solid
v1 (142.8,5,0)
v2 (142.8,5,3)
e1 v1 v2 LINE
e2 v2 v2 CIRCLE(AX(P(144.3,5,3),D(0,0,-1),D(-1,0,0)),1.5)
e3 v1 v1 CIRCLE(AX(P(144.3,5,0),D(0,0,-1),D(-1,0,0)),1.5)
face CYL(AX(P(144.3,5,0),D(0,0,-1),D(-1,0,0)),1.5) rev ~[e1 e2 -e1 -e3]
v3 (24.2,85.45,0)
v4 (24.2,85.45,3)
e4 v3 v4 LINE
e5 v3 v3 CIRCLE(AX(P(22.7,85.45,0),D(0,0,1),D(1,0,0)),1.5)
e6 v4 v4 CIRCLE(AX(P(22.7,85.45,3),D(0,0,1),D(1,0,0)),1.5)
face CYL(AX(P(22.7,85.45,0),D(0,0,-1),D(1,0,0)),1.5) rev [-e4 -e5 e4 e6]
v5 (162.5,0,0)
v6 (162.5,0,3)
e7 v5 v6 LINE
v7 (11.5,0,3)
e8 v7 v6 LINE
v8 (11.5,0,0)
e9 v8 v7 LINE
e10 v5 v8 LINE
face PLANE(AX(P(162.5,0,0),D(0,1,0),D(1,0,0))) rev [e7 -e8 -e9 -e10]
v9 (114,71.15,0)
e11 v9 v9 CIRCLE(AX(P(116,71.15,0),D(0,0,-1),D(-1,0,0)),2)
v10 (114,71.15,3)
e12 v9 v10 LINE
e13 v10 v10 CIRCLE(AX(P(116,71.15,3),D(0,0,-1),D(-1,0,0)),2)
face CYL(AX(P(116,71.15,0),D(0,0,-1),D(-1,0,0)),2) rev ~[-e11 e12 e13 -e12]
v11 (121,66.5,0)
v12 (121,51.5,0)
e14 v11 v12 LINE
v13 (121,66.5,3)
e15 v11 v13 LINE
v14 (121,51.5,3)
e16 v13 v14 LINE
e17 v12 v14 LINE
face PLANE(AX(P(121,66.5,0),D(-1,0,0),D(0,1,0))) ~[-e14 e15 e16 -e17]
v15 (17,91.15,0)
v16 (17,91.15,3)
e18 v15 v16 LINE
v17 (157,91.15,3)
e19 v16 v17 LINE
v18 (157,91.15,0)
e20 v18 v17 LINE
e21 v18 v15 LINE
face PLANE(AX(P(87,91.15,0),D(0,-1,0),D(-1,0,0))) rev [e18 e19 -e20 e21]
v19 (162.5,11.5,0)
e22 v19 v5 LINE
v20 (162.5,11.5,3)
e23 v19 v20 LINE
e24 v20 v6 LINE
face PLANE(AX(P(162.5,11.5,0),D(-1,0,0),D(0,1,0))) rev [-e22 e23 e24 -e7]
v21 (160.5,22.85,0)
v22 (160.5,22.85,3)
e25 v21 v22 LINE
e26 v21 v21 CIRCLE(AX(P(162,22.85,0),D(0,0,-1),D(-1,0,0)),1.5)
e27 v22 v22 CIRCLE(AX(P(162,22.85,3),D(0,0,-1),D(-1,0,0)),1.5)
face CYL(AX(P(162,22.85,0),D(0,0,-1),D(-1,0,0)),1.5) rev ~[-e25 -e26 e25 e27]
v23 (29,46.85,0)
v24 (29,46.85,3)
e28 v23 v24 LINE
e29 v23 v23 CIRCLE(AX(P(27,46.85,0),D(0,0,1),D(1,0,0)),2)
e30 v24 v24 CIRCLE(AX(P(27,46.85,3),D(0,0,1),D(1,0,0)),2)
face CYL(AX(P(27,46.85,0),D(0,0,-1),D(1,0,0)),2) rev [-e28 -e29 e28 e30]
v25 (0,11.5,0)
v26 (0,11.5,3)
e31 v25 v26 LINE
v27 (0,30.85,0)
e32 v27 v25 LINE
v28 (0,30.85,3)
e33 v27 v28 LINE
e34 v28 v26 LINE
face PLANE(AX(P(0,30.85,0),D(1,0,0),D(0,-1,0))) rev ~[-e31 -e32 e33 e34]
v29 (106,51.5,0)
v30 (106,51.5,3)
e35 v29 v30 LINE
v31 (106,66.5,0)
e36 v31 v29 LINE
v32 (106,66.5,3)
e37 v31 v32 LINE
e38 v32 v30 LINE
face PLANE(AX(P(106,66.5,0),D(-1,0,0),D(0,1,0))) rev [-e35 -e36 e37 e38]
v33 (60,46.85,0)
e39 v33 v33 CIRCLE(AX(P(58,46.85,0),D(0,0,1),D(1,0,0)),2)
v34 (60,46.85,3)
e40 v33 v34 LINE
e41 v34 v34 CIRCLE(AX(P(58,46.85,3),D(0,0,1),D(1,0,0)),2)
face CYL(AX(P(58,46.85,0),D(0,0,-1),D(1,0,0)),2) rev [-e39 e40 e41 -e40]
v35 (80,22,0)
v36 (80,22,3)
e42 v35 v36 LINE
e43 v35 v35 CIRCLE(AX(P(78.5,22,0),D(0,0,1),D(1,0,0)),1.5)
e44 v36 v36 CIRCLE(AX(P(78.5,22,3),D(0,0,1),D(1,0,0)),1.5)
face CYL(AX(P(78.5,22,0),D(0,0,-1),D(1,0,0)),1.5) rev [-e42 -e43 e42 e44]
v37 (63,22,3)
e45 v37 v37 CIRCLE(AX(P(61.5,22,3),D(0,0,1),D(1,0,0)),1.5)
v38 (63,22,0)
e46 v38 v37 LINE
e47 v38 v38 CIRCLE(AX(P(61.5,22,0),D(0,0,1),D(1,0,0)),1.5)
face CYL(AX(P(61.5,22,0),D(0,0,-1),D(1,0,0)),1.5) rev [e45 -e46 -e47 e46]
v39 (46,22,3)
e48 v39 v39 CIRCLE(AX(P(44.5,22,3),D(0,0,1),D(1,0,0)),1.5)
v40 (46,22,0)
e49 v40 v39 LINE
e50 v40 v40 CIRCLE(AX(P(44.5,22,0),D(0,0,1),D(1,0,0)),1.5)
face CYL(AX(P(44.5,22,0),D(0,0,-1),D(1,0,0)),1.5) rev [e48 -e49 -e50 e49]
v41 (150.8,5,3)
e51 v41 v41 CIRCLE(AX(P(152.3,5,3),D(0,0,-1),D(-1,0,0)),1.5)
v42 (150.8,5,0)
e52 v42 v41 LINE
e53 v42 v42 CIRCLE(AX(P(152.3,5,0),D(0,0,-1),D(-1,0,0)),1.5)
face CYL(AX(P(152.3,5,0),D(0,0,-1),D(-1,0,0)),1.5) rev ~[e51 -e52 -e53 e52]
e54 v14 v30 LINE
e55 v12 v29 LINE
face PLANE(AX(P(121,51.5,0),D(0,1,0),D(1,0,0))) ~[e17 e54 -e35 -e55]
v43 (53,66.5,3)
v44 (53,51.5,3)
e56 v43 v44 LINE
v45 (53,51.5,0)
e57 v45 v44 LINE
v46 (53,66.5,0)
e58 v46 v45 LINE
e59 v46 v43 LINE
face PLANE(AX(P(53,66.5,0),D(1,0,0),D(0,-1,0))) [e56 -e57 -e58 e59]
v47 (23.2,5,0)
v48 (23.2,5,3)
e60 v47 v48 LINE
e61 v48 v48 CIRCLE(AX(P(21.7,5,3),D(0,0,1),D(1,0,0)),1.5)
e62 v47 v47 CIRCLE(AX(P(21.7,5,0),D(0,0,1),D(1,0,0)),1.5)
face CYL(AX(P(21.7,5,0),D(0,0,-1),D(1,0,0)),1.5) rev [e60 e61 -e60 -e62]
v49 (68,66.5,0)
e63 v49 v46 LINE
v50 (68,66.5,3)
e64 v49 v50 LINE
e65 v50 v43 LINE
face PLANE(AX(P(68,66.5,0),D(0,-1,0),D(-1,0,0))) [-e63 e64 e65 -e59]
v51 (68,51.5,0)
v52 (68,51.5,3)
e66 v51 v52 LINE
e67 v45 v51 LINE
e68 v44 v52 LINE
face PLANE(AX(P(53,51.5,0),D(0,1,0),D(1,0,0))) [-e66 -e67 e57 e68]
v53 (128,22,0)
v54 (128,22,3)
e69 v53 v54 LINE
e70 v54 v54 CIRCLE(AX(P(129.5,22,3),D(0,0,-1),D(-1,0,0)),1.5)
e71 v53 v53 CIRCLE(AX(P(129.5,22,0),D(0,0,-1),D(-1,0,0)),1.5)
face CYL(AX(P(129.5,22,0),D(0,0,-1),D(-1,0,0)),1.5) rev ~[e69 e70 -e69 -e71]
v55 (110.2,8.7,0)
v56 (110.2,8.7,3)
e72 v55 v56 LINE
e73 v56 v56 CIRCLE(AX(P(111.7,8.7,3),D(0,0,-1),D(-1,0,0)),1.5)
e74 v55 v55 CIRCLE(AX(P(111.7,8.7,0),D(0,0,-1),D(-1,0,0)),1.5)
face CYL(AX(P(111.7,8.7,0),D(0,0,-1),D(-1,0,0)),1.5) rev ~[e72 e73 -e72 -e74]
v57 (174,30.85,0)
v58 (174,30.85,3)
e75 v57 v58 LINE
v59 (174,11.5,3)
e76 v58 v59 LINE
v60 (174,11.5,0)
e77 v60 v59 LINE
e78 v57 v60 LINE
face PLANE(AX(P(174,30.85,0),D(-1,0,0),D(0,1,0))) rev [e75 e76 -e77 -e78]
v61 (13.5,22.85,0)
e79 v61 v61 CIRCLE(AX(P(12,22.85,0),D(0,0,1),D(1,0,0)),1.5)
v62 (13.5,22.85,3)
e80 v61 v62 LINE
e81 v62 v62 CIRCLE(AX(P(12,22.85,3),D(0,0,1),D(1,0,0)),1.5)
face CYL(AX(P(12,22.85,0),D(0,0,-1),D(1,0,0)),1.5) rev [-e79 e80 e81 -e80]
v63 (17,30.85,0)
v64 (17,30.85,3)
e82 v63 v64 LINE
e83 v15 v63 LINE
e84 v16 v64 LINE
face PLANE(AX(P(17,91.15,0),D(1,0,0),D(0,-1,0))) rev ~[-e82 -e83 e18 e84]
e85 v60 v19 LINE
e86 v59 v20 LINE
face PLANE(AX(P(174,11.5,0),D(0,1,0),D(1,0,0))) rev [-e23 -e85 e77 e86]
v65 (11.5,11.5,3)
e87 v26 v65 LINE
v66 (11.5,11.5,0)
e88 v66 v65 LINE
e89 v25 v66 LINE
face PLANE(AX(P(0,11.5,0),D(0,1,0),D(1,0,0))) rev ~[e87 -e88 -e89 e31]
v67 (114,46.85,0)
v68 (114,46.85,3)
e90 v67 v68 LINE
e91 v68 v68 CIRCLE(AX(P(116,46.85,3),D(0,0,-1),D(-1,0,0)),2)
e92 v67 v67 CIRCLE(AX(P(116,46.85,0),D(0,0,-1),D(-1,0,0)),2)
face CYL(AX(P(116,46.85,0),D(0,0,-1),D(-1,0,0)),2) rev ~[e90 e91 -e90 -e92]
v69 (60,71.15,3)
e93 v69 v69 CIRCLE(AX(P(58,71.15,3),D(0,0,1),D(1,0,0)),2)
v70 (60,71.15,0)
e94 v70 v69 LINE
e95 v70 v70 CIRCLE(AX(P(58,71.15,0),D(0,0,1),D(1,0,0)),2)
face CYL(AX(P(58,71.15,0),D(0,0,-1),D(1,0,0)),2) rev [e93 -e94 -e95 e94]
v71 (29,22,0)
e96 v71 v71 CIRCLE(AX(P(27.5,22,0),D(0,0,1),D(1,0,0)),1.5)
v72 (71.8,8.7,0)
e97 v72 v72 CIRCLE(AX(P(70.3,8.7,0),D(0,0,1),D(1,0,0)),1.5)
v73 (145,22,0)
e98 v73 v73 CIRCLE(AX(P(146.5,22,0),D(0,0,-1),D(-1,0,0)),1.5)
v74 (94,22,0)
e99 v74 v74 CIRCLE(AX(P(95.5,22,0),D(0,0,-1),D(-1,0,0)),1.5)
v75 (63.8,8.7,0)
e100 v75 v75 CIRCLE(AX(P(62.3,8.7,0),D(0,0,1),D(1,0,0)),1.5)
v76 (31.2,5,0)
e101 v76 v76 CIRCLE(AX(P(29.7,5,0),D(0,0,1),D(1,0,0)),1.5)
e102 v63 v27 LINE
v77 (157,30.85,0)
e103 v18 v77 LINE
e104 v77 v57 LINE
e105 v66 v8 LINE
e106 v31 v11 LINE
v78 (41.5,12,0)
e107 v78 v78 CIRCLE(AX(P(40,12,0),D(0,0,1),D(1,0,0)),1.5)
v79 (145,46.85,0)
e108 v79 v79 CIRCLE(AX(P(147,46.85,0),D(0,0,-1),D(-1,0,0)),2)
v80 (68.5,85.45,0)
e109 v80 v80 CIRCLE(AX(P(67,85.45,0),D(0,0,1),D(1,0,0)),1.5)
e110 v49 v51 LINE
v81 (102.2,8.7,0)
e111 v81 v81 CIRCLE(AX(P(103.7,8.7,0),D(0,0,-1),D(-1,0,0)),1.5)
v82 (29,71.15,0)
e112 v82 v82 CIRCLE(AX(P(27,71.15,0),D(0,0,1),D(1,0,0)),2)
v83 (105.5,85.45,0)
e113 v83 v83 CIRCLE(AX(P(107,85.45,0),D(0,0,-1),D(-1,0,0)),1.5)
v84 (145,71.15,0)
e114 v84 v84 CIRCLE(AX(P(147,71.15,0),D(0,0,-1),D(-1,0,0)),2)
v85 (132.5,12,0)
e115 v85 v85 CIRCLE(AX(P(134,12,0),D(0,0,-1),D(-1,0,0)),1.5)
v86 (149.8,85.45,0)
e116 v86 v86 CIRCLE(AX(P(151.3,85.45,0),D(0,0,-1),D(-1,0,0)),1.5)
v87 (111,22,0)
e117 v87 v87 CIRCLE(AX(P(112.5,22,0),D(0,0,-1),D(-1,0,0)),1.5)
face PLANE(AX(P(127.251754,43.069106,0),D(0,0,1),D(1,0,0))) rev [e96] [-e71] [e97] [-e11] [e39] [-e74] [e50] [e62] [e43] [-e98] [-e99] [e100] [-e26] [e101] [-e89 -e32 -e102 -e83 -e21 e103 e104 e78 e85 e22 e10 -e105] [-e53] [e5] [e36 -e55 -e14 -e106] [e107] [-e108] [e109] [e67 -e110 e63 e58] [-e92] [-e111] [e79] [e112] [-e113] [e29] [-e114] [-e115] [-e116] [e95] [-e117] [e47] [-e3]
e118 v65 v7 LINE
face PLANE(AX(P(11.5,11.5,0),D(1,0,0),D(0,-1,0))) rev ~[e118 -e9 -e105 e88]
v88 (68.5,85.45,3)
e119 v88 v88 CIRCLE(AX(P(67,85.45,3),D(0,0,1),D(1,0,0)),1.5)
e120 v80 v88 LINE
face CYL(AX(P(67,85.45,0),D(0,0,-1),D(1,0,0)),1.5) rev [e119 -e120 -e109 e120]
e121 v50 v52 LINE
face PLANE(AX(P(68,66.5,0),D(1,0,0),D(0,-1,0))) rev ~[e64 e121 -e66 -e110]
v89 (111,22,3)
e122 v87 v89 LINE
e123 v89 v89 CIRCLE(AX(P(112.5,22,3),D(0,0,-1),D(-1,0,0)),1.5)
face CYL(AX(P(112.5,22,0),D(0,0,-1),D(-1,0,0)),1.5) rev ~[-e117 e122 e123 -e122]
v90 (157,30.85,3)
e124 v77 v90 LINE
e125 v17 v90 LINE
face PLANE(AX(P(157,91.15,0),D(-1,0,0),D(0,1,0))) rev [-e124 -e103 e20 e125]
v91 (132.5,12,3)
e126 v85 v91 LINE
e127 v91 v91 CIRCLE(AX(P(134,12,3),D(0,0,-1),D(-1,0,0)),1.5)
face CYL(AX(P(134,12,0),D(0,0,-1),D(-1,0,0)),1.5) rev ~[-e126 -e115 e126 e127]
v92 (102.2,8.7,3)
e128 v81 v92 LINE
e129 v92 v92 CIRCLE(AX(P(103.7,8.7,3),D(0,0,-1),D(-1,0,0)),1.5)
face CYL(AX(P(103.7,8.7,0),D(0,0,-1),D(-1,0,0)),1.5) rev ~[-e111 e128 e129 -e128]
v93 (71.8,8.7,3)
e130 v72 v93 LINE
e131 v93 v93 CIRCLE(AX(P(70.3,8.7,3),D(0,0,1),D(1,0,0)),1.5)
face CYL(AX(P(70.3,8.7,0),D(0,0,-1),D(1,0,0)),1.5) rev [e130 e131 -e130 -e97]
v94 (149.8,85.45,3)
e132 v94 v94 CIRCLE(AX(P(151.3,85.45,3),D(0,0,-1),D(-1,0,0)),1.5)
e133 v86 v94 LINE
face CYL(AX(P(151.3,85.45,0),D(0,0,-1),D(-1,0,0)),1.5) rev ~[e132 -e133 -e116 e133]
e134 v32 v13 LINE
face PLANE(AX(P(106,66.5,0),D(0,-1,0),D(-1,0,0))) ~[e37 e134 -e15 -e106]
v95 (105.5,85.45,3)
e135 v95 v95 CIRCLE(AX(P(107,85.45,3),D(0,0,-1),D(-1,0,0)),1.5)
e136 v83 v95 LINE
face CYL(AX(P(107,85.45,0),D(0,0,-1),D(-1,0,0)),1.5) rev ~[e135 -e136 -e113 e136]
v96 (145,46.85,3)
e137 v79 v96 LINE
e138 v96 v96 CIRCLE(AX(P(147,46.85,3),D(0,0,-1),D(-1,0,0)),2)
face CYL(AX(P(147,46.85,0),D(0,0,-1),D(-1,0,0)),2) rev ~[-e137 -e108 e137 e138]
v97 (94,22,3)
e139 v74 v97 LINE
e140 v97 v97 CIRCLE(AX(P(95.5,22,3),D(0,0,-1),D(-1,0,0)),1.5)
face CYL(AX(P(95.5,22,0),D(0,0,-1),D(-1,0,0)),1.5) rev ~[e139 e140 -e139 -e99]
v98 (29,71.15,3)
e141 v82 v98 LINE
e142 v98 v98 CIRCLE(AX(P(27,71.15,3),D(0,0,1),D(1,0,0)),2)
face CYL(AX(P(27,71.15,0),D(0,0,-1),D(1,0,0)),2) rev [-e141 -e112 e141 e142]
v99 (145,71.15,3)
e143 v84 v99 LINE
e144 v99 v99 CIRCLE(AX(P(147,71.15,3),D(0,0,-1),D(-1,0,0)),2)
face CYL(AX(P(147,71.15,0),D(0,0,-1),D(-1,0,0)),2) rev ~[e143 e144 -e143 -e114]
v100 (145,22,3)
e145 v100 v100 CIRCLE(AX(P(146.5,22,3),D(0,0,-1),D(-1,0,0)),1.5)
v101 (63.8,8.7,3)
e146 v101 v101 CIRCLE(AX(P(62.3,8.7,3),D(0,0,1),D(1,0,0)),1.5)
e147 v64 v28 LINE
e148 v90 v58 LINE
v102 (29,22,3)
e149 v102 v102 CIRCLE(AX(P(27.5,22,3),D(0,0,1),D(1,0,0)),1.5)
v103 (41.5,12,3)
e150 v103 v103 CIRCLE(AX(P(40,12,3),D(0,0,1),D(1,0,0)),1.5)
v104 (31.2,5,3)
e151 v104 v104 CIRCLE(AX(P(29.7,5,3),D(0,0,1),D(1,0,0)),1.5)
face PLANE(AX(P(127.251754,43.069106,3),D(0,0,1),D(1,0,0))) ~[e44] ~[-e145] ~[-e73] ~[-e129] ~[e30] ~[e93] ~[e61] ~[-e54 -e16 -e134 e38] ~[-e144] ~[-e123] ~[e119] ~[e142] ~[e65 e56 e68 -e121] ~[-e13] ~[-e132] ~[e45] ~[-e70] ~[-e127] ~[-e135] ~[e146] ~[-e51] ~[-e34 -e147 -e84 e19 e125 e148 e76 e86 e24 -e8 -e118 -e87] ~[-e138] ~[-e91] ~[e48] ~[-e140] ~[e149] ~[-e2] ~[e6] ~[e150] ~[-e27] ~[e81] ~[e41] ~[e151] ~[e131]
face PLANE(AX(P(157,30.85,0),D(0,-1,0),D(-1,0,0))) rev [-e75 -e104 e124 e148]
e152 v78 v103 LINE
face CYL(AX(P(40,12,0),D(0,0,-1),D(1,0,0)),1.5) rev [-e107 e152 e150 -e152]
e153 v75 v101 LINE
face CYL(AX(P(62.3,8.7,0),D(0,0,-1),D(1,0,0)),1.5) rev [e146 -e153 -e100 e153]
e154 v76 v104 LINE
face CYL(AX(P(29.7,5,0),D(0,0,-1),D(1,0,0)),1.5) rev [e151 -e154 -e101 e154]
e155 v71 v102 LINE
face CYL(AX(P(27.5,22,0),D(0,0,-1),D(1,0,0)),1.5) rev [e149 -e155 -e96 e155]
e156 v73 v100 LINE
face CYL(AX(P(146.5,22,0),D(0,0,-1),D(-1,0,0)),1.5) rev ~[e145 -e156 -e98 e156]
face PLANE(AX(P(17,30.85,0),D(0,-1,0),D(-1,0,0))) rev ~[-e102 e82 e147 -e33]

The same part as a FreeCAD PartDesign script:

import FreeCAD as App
import Part
import Sketcher

V = App.Vector

doc = App.newDocument("Part")
body = doc.addObject("PartDesign::Body", "Body")

# Sketch on XY plane
sketch1 = doc.addObject("Sketcher::SketchObject", "Sketch")
body.addObject(sketch1)
sketch1.AttachmentSupport = (doc.XY_Plane, [""])
sketch1.MapMode = "FlatFace"
sketch1.addGeometry(Part.LineSegment(V(87, 0, 0), V(87, 91.2, 0)), False)
sketch1.addGeometry(Part.LineSegment(V(87, 91.2, 0), V(17, 91.2, 0)), False)
sketch1.addGeometry(Part.LineSegment(V(17, 91.2, 0), V(17, 30.9, 0)), False)
sketch1.addGeometry(Part.LineSegment(V(17, 30.9, 0), V(0, 30.9, 0)), False)
sketch1.addGeometry(Part.LineSegment(V(0, 30.9, 0), V(0, 11.5, 0)), False)
sketch1.addGeometry(Part.LineSegment(V(0, 11.5, 0), V(11.5, 11.5, 0)), False)
sketch1.addGeometry(Part.LineSegment(V(11.5, 11.5, 0), V(11.5, 0, 0)), False)
sketch1.addGeometry(Part.LineSegment(V(11.5, 0, 0), V(87, 0, 0)), False)
sketch1.addGeometry(Part.Circle(V(21.7, 5, 0), V(0, 0, 1), 1.5), False)
sketch1.addGeometry(Part.Circle(V(12, 22.9, 0), V(0, 0, 1), 1.5), False)
sketch1.addGeometry(Part.Circle(V(27.5, 22, 0), V(0, 0, 1), 1.5), False)
sketch1.addGeometry(Part.Circle(V(29.7, 5, 0), V(0, 0, 1), 1.5), False)
sketch1.addGeometry(Part.Circle(V(40, 12, 0), V(0, 0, 1), 1.5), False)
sketch1.addGeometry(Part.Circle(V(44.5, 22, 0), V(0, 0, 1), 1.5), False)
sketch1.addGeometry(Part.Circle(V(62.3, 8.7, 0), V(0, 0, 1), 1.5), False)
sketch1.addGeometry(Part.Circle(V(61.5, 22, 0), V(0, 0, 1), 1.5), False)
sketch1.addGeometry(Part.Circle(V(70.3, 8.7, 0), V(0, 0, 1), 1.5), False)
sketch1.addGeometry(Part.Circle(V(78.5, 22, 0), V(0, 0, 1), 1.5), False)
sketch1.addGeometry(Part.Circle(V(27, 46.9, 0), V(0, 0, 1), 2), False)
sketch1.addGeometry(Part.Circle(V(27, 71.2, 0), V(0, 0, 1), 2), False)
sketch1.addGeometry(Part.Circle(V(22.7, 85.5, 0), V(0, 0, 1), 1.5), False)
sketch1.addGeometry(Part.Circle(V(58, 46.9, 0), V(0, 0, 1), 2), False)
sketch1.addGeometry(Part.LineSegment(V(68, 66.5, 0), V(68, 51.5, 0)), False)
sketch1.addGeometry(Part.LineSegment(V(68, 51.5, 0), V(53, 51.5, 0)), False)
sketch1.addGeometry(Part.LineSegment(V(53, 51.5, 0), V(53, 66.5, 0)), False)
sketch1.addGeometry(Part.LineSegment(V(53, 66.5, 0), V(68, 66.5, 0)), False)
sketch1.addGeometry(Part.Circle(V(58, 71.2, 0), V(0, 0, 1), 2), False)
sketch1.addGeometry(Part.Circle(V(67, 85.5, 0), V(0, 0, 1), 1.5), False)
sketch1.addConstraint(Sketcher.Constraint("Coincident", 0, 2, 1, 1))
sketch1.addConstraint(Sketcher.Constraint("Coincident", 1, 2, 2, 1))
sketch1.addConstraint(Sketcher.Constraint("Coincident", 2, 2, 3, 1))
sketch1.addConstraint(Sketcher.Constraint("Coincident", 3, 2, 4, 1))
sketch1.addConstraint(Sketcher.Constraint("Coincident", 4, 2, 5, 1))
sketch1.addConstraint(Sketcher.Constraint("Coincident", 5, 2, 6, 1))
sketch1.addConstraint(Sketcher.Constraint("Coincident", 6, 2, 7, 1))
sketch1.addConstraint(Sketcher.Constraint("Coincident", 7, 2, 0, 1))
sketch1.addConstraint(Sketcher.Constraint("Coincident", 22, 2, 23, 1))
sketch1.addConstraint(Sketcher.Constraint("Coincident", 23, 2, 24, 1))
sketch1.addConstraint(Sketcher.Constraint("Coincident", 24, 2, 25, 1))
sketch1.addConstraint(Sketcher.Constraint("Coincident", 25, 2, 22, 1))
sketch1.addConstraint(Sketcher.Constraint("Vertical", 0))
sketch1.addConstraint(Sketcher.Constraint("Horizontal", 1))
sketch1.addConstraint(Sketcher.Constraint("Vertical", 2))
sketch1.addConstraint(Sketcher.Constraint("Horizontal", 3))
sketch1.addConstraint(Sketcher.Constraint("Vertical", 4))
sketch1.addConstraint(Sketcher.Constraint("Horizontal", 5))
sketch1.addConstraint(Sketcher.Constraint("Vertical", 6))
sketch1.addConstraint(Sketcher.Constraint("Horizontal", 7))
sketch1.addConstraint(Sketcher.Constraint("Vertical", 22))
sketch1.addConstraint(Sketcher.Constraint("Horizontal", 23))
sketch1.addConstraint(Sketcher.Constraint("Vertical", 24))
sketch1.addConstraint(Sketcher.Constraint("Horizontal", 25))
sketch1.addConstraint(Sketcher.Constraint("Equal", 8, 9))
sketch1.addConstraint(Sketcher.Constraint("Equal", 9, 10))
sketch1.addConstraint(Sketcher.Constraint("Equal", 10, 11))
sketch1.addConstraint(Sketcher.Constraint("Equal", 11, 12))
sketch1.addConstraint(Sketcher.Constraint("Equal", 12, 13))
sketch1.addConstraint(Sketcher.Constraint("Equal", 13, 14))
sketch1.addConstraint(Sketcher.Constraint("Equal", 14, 15))
sketch1.addConstraint(Sketcher.Constraint("Equal", 15, 16))
sketch1.addConstraint(Sketcher.Constraint("Equal", 16, 17))
sketch1.addConstraint(Sketcher.Constraint("Equal", 18, 19))
sketch1.addConstraint(Sketcher.Constraint("Equal", 17, 20))
sketch1.addConstraint(Sketcher.Constraint("Equal", 19, 21))
sketch1.addConstraint(Sketcher.Constraint("Equal", 21, 26))
sketch1.addConstraint(Sketcher.Constraint("Equal", 20, 27))
sketch1.addConstraint(Sketcher.Constraint("PointOnObject", 3, 2, -2))
sketch1.addConstraint(Sketcher.Constraint("PointOnObject", 6, 2, -1))
sketch1.addConstraint(Sketcher.Constraint("Horizontal", 8, 3, 11, 3))
sketch1.addConstraint(Sketcher.Constraint("Horizontal", 10, 3, 13, 3))
sketch1.addConstraint(Sketcher.Constraint("Horizontal", 13, 3, 15, 3))
sketch1.addConstraint(Sketcher.Constraint("Horizontal", 14, 3, 16, 3))
sketch1.addConstraint(Sketcher.Constraint("Horizontal", 15, 3, 17, 3))
sketch1.addConstraint(Sketcher.Constraint("Horizontal", 18, 3, 21, 3))
sketch1.addConstraint(Sketcher.Constraint("Horizontal", 19, 3, 26, 3))
sketch1.addConstraint(Sketcher.Constraint("Horizontal", 20, 3, 27, 3))
sketch1.addConstraint(Sketcher.Constraint("Vertical", 18, 3, 19, 3))
sketch1.addConstraint(Sketcher.Constraint("Vertical", 21, 3, 26, 3))
sketch1.addConstraint(Sketcher.Constraint("Equal", 5, 6))
sketch1.addConstraint(Sketcher.Constraint("Equal", 25, 22))
sketch1.addConstraint(Sketcher.Constraint("Diameter", 8, 3.0))
sketch1.addConstraint(Sketcher.Constraint("Diameter", 18, 4.0))
sketch1.addConstraint(Sketcher.Constraint("DistanceX", 1, 2, 1, 1, 70.0))
sketch1.addConstraint(Sketcher.Constraint("DistanceX", 3, 2, 3, 1, 17.0))
sketch1.addConstraint(Sketcher.Constraint("DistanceX", 23, 2, 23, 1, 15.0))
sketch1.addConstraint(Sketcher.Constraint("DistanceX", 5, 1, 5, 2, 11.5))
sketch1.addConstraint(Sketcher.Constraint("DistanceY", 2, 2, 2, 1, 60.3))
sketch1.addConstraint(Sketcher.Constraint("DistanceY", -1, 1, 8, 3, 5.0))
sketch1.addConstraint(Sketcher.Constraint("DistanceX", -1, 1, 9, 3, 12.0))
sketch1.addConstraint(Sketcher.Constraint("DistanceY", -1, 1, 10, 3, 22.0))
sketch1.addConstraint(Sketcher.Constraint("DistanceX", -1, 1, 12, 3, 40.0))
sketch1.addConstraint(Sketcher.Constraint("DistanceY", -1, 1, 12, 3, 12.0))
sketch1.addConstraint(Sketcher.Constraint("DistanceX", -1, 1, 18, 3, 27.0))
sketch1.addConstraint(Sketcher.Constraint("DistanceX", -1, 1, 21, 3, 58.0))
sketch1.addConstraint(Sketcher.Constraint("DistanceX", -1, 1, 27, 3, 67.0))
sketch1.addConstraint(Sketcher.Constraint("DistanceX", -1, 1, 22, 2, 68.0))
sketch1.addConstraint(Sketcher.Constraint("DistanceX", 8, 3, 11, 3, 8.0))
sketch1.addConstraint(Sketcher.Constraint("DistanceX", 10, 3, 13, 3, 17.0))
sketch1.addConstraint(Sketcher.Constraint("DistanceX", 13, 3, 15, 3, 17.0))
sketch1.addConstraint(Sketcher.Constraint("DistanceX", 14, 3, 16, 3, 8.0))
sketch1.addConstraint(Sketcher.Constraint("DistanceX", 15, 3, 17, 3, 17.0))
sketch1.addConstraint(Sketcher.Constraint("DistanceY", 9, 3, 18, 3, 24.0))
sketch1.addConstraint(Sketcher.Constraint("DistanceY", 26, 3, 0, 2, 20.0))
sketch1.addConstraint(Sketcher.Constraint("DistanceY", 9, 3, 2, 2, 8.0))
sketch1.addConstraint(Sketcher.Constraint("DistanceX", 5, 2, 10, 3, 16.0))
sketch1.addConstraint(Sketcher.Constraint("DistanceY", 0, 1, 0, 2, 91.15))
sketch1.addConstraint(Sketcher.Constraint("DistanceX", -1, 1, 8, 3, 21.7))
sketch1.addConstraint(Sketcher.Constraint("DistanceX", -1, 1, 14, 3, 62.3))
sketch1.addConstraint(Sketcher.Constraint("DistanceY", -1, 1, 14, 3, 8.7))
sketch1.addConstraint(Sketcher.Constraint("DistanceX", -1, 1, 20, 3, 22.7))
sketch1.addConstraint(Sketcher.Constraint("DistanceY", -1, 1, 22, 2, 51.5))
sketch1.addConstraint(Sketcher.Constraint("DistanceY", 19, 3, 20, 3, 14.3))
pad1 = doc.addObject("PartDesign::Pad", "Pad")
body.addObject(pad1)
pad1.Profile = sketch1
pad1.Length = 3
doc.recompute()

datumplane = doc.addObject("PartDesign::Plane", "DatumPlane")
body.addObject(datumplane)
datumplane.AttachmentSupport = (doc.YZ_Plane, [""])
datumplane.MapMode = "FlatFace"
datumplane.AttachmentOffset = App.Placement(V(0, 0, 87), App.Rotation())
mirrored = doc.addObject("PartDesign::Mirrored", "Mirrored")
body.addObject(mirrored)
mirrored.Originals = [pad1]
mirrored.MirrorPlane = (datumplane, [""])
body.Tip = mirrored

doc.recompute()
